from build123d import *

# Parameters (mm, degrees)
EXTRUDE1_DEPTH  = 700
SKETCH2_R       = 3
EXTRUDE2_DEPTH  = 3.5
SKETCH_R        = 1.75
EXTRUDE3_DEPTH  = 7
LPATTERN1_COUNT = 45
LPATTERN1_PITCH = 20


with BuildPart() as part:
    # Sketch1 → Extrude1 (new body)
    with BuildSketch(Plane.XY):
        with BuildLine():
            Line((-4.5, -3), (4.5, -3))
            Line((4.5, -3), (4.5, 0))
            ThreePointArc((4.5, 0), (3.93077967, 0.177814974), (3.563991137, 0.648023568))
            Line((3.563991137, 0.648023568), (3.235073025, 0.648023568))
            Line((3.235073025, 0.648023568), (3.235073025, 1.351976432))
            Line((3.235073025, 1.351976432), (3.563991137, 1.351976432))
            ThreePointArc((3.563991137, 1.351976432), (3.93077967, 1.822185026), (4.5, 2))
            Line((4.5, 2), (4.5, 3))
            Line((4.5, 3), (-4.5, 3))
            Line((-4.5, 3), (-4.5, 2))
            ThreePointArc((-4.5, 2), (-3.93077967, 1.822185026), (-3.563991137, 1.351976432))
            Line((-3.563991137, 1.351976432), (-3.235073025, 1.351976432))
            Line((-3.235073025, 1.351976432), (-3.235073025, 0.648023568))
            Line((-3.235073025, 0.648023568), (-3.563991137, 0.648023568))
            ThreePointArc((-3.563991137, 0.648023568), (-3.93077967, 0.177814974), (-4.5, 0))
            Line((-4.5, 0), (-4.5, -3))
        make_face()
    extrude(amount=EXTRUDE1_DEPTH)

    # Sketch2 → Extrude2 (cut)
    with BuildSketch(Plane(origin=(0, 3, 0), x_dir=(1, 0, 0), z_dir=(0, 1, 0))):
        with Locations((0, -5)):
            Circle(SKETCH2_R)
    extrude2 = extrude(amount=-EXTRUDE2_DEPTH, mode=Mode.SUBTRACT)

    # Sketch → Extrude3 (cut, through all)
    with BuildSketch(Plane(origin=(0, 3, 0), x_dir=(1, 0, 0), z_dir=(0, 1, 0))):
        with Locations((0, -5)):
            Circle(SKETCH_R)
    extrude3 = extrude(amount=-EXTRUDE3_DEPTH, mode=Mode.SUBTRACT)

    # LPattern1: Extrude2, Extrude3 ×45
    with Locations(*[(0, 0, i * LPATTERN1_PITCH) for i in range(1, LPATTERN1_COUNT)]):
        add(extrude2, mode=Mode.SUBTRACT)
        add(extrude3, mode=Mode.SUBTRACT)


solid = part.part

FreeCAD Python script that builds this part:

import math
import FreeCAD as App
import Part
import Sketcher
from FreeCAD import Vector
Q = App.Units.Quantity

doc = App.newDocument("Part")
params = doc.addObject("Spreadsheet::Sheet", "Params")
for row, (alias, value) in enumerate([
    ("sketch1_radius", "1 mm"),
    ("sketch1_width", "9 mm"),
    ("sketch1_height", "3 mm"),
    ("pad1_length", "700 mm"),
    ("sketch2_diameter", "6 mm"),
    ("pocket1_length", "3.5 mm"),
    ("sketch3_diameter", "3.5 mm"),
    ("linearpattern_pitch", "20 mm"),
], start=1):
    params.set(f"A{row}", alias)
    params.set(f"B{row}", "=" + value)
    params.setAlias(f"B{row}", alias)

body = doc.addObject("PartDesign::Body", "Body")

# Sketch on XY plane
sketch1 = doc.addObject("Sketcher::SketchObject", "Sketch")
body.addObject(sketch1)
sketch1.AttachmentSupport = (doc.XY_Plane, [""])
sketch1.MapMode = "FlatFace"
sketch1.addGeometry(Part.LineSegment(Vector(-4.5, -3, 0), Vector(4.5, -3, 0)), False)
sketch1.addGeometry(Part.LineSegment(Vector(4.5, -3, 0), Vector(4.5, 0, 0)), False)
sketch1.addGeometry(Part.ArcOfCircle(Part.Circle(Vector(4.5, 1, 0), Vector(0, 0, 1), 1), math.radians(-159), math.radians(-90)), False)
sketch1.addGeometry(Part.LineSegment(Vector(3.56, 0.65, 0), Vector(3.24, 0.65, 0)), False)
sketch1.addGeometry(Part.LineSegment(Vector(3.24, 0.65, 0), Vector(3.24, 1.35, 0)), False)
sketch1.addGeometry(Part.LineSegment(Vector(3.24, 1.35, 0), Vector(3.56, 1.35, 0)), False)
sketch1.addGeometry(Part.ArcOfCircle(Part.Circle(Vector(4.5, 1, 0), Vector(0, 0, 1), 1), math.radians(90), math.radians(159)), False)
sketch1.addGeometry(Part.LineSegment(Vector(4.5, 2, 0), Vector(4.5, 3, 0)), False)
sketch1.addGeometry(Part.LineSegment(Vector(4.5, 3, 0), Vector(-4.5, 3, 0)), False)
sketch1.addGeometry(Part.LineSegment(Vector(-4.5, 3, 0), Vector(-4.5, 2, 0)), False)
sketch1.addGeometry(Part.ArcOfCircle(Part.Circle(Vector(-4.5, 1, 0), Vector(0, 0, 1), 1), math.radians(21), math.radians(90)), False)
sketch1.addGeometry(Part.LineSegment(Vector(-3.56, 1.35, 0), Vector(-3.24, 1.35, 0)), False)
sketch1.addGeometry(Part.LineSegment(Vector(-3.24, 1.35, 0), Vector(-3.24, 0.65, 0)), False)
sketch1.addGeometry(Part.LineSegment(Vector(-3.24, 0.65, 0), Vector(-3.56, 0.65, 0)), False)
sketch1.addGeometry(Part.ArcOfCircle(Part.Circle(Vector(-4.5, 1, 0), Vector(0, 0, 1), 1), math.radians(-90), math.radians(-21)), False)
sketch1.addGeometry(Part.LineSegment(Vector(-4.5, 0, 0), Vector(-4.5, -3, 0)), False)
sketch1.addConstraint(Sketcher.Constraint("Coincident", 0, 2, 1, 1))
sketch1.addConstraint(Sketcher.Constraint("Coincident", 1, 2, 2, 2))
sketch1.addConstraint(Sketcher.Constraint("Coincident", 2, 1, 3, 1))
sketch1.addConstraint(Sketcher.Constraint("Coincident", 3, 2, 4, 1))
sketch1.addConstraint(Sketcher.Constraint("Coincident", 4, 2, 5, 1))
sketch1.addConstraint(Sketcher.Constraint("Coincident", 5, 2, 6, 2))
sketch1.addConstraint(Sketcher.Constraint("Coincident", 6, 1, 7, 1))
sketch1.addConstraint(Sketcher.Constraint("Coincident", 7, 2, 8, 1))
sketch1.addConstraint(Sketcher.Constraint("Coincident", 8, 2, 9, 1))
sketch1.addConstraint(Sketcher.Constraint("Coincident", 9, 2, 10, 2))
sketch1.addConstraint(Sketcher.Constraint("Coincident", 10, 1, 11, 1))
sketch1.addConstraint(Sketcher.Constraint("Coincident", 11, 2, 12, 1))
sketch1.addConstraint(Sketcher.Constraint("Coincident", 12, 2, 13, 1))
sketch1.addConstraint(Sketcher.Constraint("Coincident", 13, 2, 14, 2))
sketch1.addConstraint(Sketcher.Constraint("Coincident", 14, 1, 15, 1))
sketch1.addConstraint(Sketcher.Constraint("Coincident", 15, 2, 0, 1))
sketch1.addConstraint(Sketcher.Constraint("Horizontal", 0))
sketch1.addConstraint(Sketcher.Constraint("Vertical", 1))
sketch1.addConstraint(Sketcher.Constraint("Horizontal", 3))
sketch1.addConstraint(Sketcher.Constraint("Vertical", 4))
sketch1.addConstraint(Sketcher.Constraint("Horizontal", 5))
sketch1.addConstraint(Sketcher.Constraint("Vertical", 7))
sketch1.addConstraint(Sketcher.Constraint("Horizontal", 8))
sketch1.addConstraint(Sketcher.Constraint("Vertical", 9))
sketch1.addConstraint(Sketcher.Constraint("Horizontal", 11))
sketch1.addConstraint(Sketcher.Constraint("Vertical", 12))
sketch1.addConstraint(Sketcher.Constraint("Horizontal", 13))
sketch1.addConstraint(Sketcher.Constraint("Vertical", 15))
sketch1.addConstraint(Sketcher.Constraint("Coincident", 6, 3, 2, 3))
sketch1.addConstraint(Sketcher.Constraint("Coincident", 14, 3, 10, 3))
sketch1.addConstraint(Sketcher.Constraint("Equal", 2, 6))
sketch1.addConstraint(Sketcher.Constraint("Equal", 6, 10))
sketch1.addConstraint(Sketcher.Constraint("Equal", 10, 14))
sketch1.addConstraint(Sketcher.Constraint("Symmetric", 0, 2, 8, 2, -1, 1))
sketch1.addConstraint(Sketcher.Constraint("Symmetric", 1, 2, 14, 1, -1, 1))
sketch1.addConstraint(Sketcher.Constraint("Symmetric", 2, 3, 10, 3, -2))
sketch1.addConstraint(Sketcher.Constraint("Symmetric", 4, 2, 11, 2, -2))
sketch1.addConstraint(Sketcher.Constraint("Horizontal", 3, 2, 12, 2))
sketch1.addConstraint(Sketcher.Constraint("Vertical", 6, 3, 0, 2))
sketch1.addConstraint(Sketcher.Constraint("Vertical", 2, 1, 5, 2))
sketch1.addConstraint(Sketcher.Constraint("Vertical", 1, 2, 6, 1))
sketch1.addConstraint(Sketcher.Constraint("Radius", 2, Q("1 mm")))
sketch1.addConstraint(Sketcher.Constraint("DistanceX", 0, 1, 0, 2, Q("9 mm")))
sketch1.addConstraint(Sketcher.Constraint("DistanceY", 1, 1, 1, 2, Q("3 mm")))
sketch1.addConstraint(Sketcher.Constraint("DistanceX", 3, 2, 3, 1, Q("0.328918 mm")))
sketch1.addConstraint(Sketcher.Constraint("DistanceY", 4, 1, 4, 2, Q("0.703953 mm")))
sketch1.setExpression("Constraints[41]", "Params.sketch1_radius")
sketch1.setExpression("Constraints[42]", "Params.sketch1_width")
sketch1.setExpression("Constraints[43]", "Params.sketch1_height")
pad1 = doc.addObject("PartDesign::Pad", "Pad")
body.addObject(pad1)
pad1.Profile = sketch1
pad1.setExpression("Length", "Params.pad1_length")

# Sketch on XZ plane
sketch2 = doc.addObject("Sketcher::SketchObject", "Sketch001")
body.addObject(sketch2)
sketch2.AttachmentSupport = (doc.XZ_Plane, [""])
sketch2.MapMode = "FlatFace"
sketch2.AttachmentOffset = App.Placement(Vector(0, 0, -3), App.Rotation())
sketch2.addGeometry(Part.Circle(Vector(0, 5, 0), Vector(0, 0, 1), 3), False)
sketch2.addConstraint(Sketcher.Constraint("PointOnObject", 0, 3, -2))
sketch2.addConstraint(Sketcher.Constraint("Diameter", 0, Q("6 mm")))
sketch2.addConstraint(Sketcher.Constraint("DistanceY", -1, 1, 0, 3, Q("5 mm")))
sketch2.setExpression("Constraints[1]", "Params.sketch2_diameter")
pocket1 = doc.addObject("PartDesign::Pocket", "Pocket")
body.addObject(pocket1)
pocket1.Profile = sketch2
pocket1.setExpression("Length", "Params.pocket1_length")
pocket1.Reversed = True

# Sketch on XZ plane
sketch3 = doc.addObject("Sketcher::SketchObject", "Sketch002")
body.addObject(sketch3)
sketch3.AttachmentSupport = (doc.XZ_Plane, [""])
sketch3.MapMode = "FlatFace"
sketch3.AttachmentOffset = App.Placement(Vector(0, 0, -3), App.Rotation())
sketch3.addGeometry(Part.Circle(Vector(0, 5, 0), Vector(0, 0, 1), 1.8), False)
sketch3.addConstraint(Sketcher.Constraint("PointOnObject", 0, 3, -2))
sketch3.addConstraint(Sketcher.Constraint("Diameter", 0, Q("3.5 mm")))
sketch3.addConstraint(Sketcher.Constraint("DistanceY", -1, 1, 0, 3, Q("5 mm")))
sketch3.setExpression("Constraints[1]", "Params.sketch3_diameter")
pocket2 = doc.addObject("PartDesign::Pocket", "Pocket001")
body.addObject(pocket2)
pocket2.Profile = sketch3
pocket2.Type = "ThroughAll"
pocket2.Reversed = True
doc.recompute()

linearpattern = doc.addObject("PartDesign::LinearPattern", "LinearPattern")
body.addObject(linearpattern)
linearpattern.Originals = [pocket1, pocket2]
linearpattern.Direction = (doc.Z_Axis, [""])
linearpattern.Mode = "offset"
linearpattern.setExpression("Offset", "Params.linearpattern_pitch")
linearpattern.Occurrences = 45
body.Tip = linearpattern

doc.recompute()
